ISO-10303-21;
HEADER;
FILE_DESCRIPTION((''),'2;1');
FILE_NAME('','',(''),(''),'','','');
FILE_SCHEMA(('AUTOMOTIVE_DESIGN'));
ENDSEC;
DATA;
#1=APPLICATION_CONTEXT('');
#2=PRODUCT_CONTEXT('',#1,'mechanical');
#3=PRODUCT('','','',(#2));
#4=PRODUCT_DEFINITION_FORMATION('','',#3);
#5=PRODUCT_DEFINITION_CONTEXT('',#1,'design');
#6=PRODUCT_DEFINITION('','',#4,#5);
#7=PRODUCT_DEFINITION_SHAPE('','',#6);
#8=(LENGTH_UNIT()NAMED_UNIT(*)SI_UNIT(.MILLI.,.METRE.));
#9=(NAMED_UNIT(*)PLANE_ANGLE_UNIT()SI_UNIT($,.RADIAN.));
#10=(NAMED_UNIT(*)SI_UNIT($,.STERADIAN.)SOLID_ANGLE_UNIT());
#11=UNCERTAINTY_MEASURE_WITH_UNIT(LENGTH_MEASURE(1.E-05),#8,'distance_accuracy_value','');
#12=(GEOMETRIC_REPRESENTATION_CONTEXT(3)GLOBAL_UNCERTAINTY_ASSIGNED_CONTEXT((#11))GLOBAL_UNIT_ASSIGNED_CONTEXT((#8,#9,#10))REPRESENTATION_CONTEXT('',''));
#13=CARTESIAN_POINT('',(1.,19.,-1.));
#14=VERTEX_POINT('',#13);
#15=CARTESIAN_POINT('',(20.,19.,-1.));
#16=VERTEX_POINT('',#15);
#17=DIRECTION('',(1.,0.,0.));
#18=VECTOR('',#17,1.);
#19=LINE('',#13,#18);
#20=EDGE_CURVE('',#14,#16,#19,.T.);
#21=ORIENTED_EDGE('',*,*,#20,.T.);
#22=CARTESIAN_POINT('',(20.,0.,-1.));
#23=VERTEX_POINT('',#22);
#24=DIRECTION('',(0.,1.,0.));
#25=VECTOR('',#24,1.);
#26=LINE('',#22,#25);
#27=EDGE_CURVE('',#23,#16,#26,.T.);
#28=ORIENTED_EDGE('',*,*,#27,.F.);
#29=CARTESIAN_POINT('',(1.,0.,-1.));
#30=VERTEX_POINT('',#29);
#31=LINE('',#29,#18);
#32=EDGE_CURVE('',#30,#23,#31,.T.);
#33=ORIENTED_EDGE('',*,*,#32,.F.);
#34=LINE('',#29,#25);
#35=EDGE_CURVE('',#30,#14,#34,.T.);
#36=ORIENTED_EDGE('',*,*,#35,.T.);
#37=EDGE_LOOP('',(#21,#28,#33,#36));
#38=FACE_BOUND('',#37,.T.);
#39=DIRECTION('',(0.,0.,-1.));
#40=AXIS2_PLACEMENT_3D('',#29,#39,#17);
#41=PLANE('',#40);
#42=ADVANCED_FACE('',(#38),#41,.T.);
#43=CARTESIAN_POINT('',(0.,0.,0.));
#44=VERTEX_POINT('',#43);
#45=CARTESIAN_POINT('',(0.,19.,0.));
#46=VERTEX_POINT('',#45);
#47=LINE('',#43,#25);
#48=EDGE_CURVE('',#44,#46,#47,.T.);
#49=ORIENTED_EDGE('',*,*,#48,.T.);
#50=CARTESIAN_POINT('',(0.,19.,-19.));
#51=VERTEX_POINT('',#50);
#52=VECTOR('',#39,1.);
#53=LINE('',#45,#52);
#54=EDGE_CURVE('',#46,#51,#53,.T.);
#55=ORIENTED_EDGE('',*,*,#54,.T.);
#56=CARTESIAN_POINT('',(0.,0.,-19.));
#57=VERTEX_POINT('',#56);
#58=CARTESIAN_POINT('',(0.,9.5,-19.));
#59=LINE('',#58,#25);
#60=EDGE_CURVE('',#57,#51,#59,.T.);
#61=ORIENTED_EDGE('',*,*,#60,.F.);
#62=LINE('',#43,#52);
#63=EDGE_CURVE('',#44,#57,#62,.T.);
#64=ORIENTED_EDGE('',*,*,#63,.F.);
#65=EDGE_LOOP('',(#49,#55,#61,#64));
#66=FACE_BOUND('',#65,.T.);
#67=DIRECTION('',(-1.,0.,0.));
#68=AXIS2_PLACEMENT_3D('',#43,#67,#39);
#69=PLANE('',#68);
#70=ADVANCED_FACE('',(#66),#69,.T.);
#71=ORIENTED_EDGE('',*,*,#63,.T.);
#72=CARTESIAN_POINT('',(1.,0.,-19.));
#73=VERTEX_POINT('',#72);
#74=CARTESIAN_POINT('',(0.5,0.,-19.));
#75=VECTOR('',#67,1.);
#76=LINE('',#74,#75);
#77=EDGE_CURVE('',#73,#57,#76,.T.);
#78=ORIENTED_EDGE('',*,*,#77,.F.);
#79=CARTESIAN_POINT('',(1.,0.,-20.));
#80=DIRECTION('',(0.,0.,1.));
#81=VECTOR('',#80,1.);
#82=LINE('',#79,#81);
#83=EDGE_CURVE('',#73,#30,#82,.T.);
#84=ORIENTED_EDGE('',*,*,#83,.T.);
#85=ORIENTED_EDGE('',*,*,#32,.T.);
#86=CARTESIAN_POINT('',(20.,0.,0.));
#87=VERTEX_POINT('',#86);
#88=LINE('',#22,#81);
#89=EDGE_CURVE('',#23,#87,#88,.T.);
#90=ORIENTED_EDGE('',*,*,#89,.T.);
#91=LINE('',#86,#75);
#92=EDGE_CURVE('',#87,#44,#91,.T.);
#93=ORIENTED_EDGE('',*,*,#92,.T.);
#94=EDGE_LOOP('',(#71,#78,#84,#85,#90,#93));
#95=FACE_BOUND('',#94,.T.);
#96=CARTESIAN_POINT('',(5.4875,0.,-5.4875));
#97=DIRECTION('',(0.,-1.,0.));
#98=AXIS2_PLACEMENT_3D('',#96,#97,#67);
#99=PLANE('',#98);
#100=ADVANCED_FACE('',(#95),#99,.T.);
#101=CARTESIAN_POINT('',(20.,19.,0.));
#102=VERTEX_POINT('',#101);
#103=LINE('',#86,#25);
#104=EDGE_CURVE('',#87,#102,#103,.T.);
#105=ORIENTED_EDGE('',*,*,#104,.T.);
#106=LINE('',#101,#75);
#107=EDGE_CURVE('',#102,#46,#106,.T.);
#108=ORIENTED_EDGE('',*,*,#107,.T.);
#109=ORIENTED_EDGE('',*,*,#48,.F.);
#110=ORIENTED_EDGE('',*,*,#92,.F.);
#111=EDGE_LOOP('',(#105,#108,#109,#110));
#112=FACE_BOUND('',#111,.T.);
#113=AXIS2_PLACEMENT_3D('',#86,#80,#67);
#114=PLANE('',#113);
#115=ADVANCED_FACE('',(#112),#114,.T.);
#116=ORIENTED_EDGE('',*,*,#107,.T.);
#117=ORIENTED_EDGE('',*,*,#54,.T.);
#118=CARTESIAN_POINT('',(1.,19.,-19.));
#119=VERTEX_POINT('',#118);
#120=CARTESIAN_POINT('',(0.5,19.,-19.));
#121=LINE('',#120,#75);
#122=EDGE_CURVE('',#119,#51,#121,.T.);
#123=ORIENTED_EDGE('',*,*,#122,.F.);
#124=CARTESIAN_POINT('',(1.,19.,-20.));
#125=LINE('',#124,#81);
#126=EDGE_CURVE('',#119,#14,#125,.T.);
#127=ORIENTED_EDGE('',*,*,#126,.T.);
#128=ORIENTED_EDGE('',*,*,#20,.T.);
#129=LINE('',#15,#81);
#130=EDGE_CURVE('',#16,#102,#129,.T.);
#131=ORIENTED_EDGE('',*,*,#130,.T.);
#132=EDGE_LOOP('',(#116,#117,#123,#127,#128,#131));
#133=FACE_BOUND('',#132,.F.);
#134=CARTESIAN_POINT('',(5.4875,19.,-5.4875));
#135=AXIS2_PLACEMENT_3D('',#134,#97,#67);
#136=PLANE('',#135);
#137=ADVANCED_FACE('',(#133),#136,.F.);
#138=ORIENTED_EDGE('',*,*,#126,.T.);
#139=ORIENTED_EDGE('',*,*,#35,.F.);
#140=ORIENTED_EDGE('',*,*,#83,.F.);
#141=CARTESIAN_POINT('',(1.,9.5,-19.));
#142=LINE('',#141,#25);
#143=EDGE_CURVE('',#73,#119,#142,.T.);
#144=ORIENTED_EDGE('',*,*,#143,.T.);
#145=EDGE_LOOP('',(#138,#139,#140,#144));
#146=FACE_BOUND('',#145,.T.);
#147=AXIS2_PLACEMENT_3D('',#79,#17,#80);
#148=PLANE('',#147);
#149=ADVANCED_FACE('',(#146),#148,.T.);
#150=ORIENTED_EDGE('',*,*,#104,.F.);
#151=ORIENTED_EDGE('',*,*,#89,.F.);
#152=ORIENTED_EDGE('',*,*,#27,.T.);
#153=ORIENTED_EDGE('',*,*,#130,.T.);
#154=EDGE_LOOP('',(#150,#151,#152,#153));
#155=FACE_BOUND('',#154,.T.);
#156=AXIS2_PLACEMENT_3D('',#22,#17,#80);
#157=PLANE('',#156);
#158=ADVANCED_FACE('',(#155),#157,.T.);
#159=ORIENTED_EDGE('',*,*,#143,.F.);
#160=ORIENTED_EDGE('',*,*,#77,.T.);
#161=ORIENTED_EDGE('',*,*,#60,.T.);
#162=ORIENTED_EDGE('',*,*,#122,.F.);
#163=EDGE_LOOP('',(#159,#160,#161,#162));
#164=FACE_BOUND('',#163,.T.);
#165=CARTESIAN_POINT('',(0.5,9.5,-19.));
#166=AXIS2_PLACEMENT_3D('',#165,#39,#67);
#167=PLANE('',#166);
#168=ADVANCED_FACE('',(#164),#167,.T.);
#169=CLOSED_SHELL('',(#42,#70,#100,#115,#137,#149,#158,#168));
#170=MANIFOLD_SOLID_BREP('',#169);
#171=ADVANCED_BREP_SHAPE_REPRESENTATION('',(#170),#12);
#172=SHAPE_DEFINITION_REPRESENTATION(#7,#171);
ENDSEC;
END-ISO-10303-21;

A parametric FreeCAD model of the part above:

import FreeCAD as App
import Part
import Sketcher

doc = App.newDocument("Part")
body = doc.addObject("PartDesign::Body", "Body")

# Sketch on XZ plane
sketch1 = doc.addObject("Sketcher::SketchObject", "Sketch")
body.addObject(sketch1)
sketch1.AttachmentSupport = (doc.XZ_Plane, [""])
sketch1.MapMode = "FlatFace"
sketch1.addGeometry([
    Part.LineSegment(App.Vector(0, -20, 0), App.Vector(0, 0, 0)),  # 0
    Part.LineSegment(App.Vector(0, 0, 0), App.Vector(20, 0, 0)),  # 1
    Part.LineSegment(App.Vector(20, 0, 0), App.Vector(20, -1, 0)),  # 2
    Part.LineSegment(App.Vector(20, -1, 0), App.Vector(1, -1, 0)),  # 3
    Part.LineSegment(App.Vector(1, -1, 0), App.Vector(1, -20, 0)),  # 4
    Part.LineSegment(App.Vector(1, -20, 0), App.Vector(0, -20, 0)),  # 5
], False)
sketch1.addConstraint([
    Sketcher.Constraint("Coincident", 0, 2, 1, 1),
    Sketcher.Constraint("Coincident", 1, 2, 2, 1),
    Sketcher.Constraint("Coincident", 2, 2, 3, 1),
    Sketcher.Constraint("Coincident", 3, 2, 4, 1),
    Sketcher.Constraint("Coincident", 4, 2, 5, 1),
    Sketcher.Constraint("Coincident", 5, 2, 0, 1),
    Sketcher.Constraint("Vertical", 0),
    Sketcher.Constraint("Horizontal", 1),
    Sketcher.Constraint("Vertical", 2),
    Sketcher.Constraint("Horizontal", 3),
    Sketcher.Constraint("Vertical", 4),
    Sketcher.Constraint("Horizontal", 5),
    Sketcher.Constraint("Coincident", 0, 2, -1, 1),
    Sketcher.Constraint("Equal", 1, 0),
    Sketcher.Constraint("Equal", 5, 2),
    Sketcher.Constraint("DistanceX", 1, 1, 1, 2, 20.0),
    Sketcher.Constraint("DistanceX", 3, 2, 3, 1, 19.0),
])
pad1 = doc.addObject("PartDesign::Pad", "Pad")
body.addObject(pad1)
pad1.Profile = sketch1
pad1.Length = 19
pad1.Reversed = True

# Sketch on XY plane
sketch2 = doc.addObject("Sketcher::SketchObject", "Sketch001")
body.addObject(sketch2)
sketch2.AttachmentSupport = (doc.XY_Plane, [""])
sketch2.MapMode = "FlatFace"
sketch2.AttachmentOffset = App.Placement(App.Vector(0, 0, -20), App.Rotation())
sketch2.addGeometry([
    Part.LineSegment(App.Vector(1, 19, 0), App.Vector(1, 0, 0)),
    Part.LineSegment(App.Vector(1, 0, 0), App.Vector(0, 0, 0)),
    Part.LineSegment(App.Vector(0, 0, 0), App.Vector(0, 19, 0)),
    Part.LineSegment(App.Vector(0, 19, 0), App.Vector(1, 19, 0)),
], False)
sketch2.addConstraint([
    Sketcher.Constraint("Coincident", 0, 2, 1, 1),
    Sketcher.Constraint("Coincident", 1, 2, 2, 1),
    Sketcher.Constraint("Coincident", 2, 2, 3, 1),
    Sketcher.Constraint("Coincident", 3, 2, 0, 1),
    Sketcher.Constraint("Vertical", 0),
    Sketcher.Constraint("Horizontal", 1),
    Sketcher.Constraint("Vertical", 2),
    Sketcher.Constraint("Horizontal", 3),
    Sketcher.Constraint("Coincident", 1, 2, -1, 1),
    Sketcher.Constraint("DistanceX", 1, 2, 1, 1, 1.0),
    Sketcher.Constraint("DistanceY", 0, 2, 0, 1, 19.0),
])
pocket1 = doc.addObject("PartDesign::Pocket", "Pocket")
body.addObject(pocket1)
pocket1.Profile = sketch2
pocket1.Length = 1
pocket1.Reversed = True

doc.recompute()
